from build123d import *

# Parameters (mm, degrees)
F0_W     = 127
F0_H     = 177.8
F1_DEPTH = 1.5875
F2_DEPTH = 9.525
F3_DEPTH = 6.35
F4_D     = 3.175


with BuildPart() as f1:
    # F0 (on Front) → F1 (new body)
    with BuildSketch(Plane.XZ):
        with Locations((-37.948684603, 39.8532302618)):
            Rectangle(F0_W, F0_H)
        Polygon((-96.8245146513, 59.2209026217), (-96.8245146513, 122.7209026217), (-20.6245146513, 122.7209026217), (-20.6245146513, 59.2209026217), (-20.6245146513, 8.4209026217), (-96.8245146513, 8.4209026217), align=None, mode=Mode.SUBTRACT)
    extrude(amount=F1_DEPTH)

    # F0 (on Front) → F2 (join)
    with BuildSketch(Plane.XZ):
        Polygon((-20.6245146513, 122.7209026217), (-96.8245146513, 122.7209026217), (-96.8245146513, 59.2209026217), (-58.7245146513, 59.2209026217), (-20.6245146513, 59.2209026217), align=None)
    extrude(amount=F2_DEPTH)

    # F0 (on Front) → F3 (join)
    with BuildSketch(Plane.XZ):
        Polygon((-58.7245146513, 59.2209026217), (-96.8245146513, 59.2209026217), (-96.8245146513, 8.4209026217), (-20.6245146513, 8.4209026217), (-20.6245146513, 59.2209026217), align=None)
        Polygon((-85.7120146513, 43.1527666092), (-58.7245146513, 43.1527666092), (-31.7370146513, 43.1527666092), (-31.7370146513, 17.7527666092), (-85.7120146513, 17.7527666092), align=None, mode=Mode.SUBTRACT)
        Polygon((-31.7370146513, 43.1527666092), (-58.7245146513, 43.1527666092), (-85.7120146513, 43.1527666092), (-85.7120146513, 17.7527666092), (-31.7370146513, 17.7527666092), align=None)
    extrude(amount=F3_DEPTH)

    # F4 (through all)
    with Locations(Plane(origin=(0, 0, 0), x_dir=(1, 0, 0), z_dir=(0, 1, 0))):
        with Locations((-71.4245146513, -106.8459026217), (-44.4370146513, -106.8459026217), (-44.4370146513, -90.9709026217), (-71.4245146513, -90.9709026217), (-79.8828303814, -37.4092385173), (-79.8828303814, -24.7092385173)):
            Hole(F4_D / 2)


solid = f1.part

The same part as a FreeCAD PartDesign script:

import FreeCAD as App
import Part
import Sketcher
Q = App.Units.Quantity

doc = App.newDocument("Part")
body = doc.addObject("PartDesign::Body", "Body")

# Sketch on XZ plane
sketch1 = body.newObject("Sketcher::SketchObject", "Sketch")
sketch1.AttachmentSupport = (doc.getObject("XZ_Plane"), [""])
sketch1.MapMode = "FlatFace"
sketch1.addGeometry([
    Part.LineSegment(App.Vector(-101.448685, 128.75323, 0), App.Vector(-101.448685, -49.04677, 0)),  # 0
    Part.LineSegment(App.Vector(-101.448685, -49.04677, 0), App.Vector(25.551315, -49.04677, 0)),  # 1
    Part.LineSegment(App.Vector(25.551315, -49.04677, 0), App.Vector(25.551315, 128.75323, 0)),  # 2
    Part.LineSegment(App.Vector(25.551315, 128.75323, 0), App.Vector(-101.448685, 128.75323, 0)),  # 3
    Part.LineSegment(App.Vector(-96.824515, 8.420903, 0), App.Vector(-96.824515, 122.720903, 0)),  # 4
    Part.LineSegment(App.Vector(-96.824515, 122.720903, 0), App.Vector(-20.624515, 122.720903, 0)),  # 5
    Part.LineSegment(App.Vector(-20.624515, 122.720903, 0), App.Vector(-20.624515, 8.420903, 0)),  # 6
    Part.LineSegment(App.Vector(-20.624515, 8.420903, 0), App.Vector(-96.824515, 8.420903, 0)),  # 7
], False)
sketch1.addConstraint([
    Sketcher.Constraint("Coincident", 0, 2, 1, 1),
    Sketcher.Constraint("Coincident", 1, 2, 2, 1),
    Sketcher.Constraint("Coincident", 2, 2, 3, 1),
    Sketcher.Constraint("Coincident", 3, 2, 0, 1),
    Sketcher.Constraint("Coincident", 4, 2, 5, 1),
    Sketcher.Constraint("Coincident", 5, 2, 6, 1),
    Sketcher.Constraint("Coincident", 6, 2, 7, 1),
    Sketcher.Constraint("Coincident", 7, 2, 4, 1),
    Sketcher.Constraint("Vertical", 0),
    Sketcher.Constraint("Horizontal", 1),
    Sketcher.Constraint("Vertical", 2),
    Sketcher.Constraint("Horizontal", 3),
    Sketcher.Constraint("Vertical", 4),
    Sketcher.Constraint("Horizontal", 5),
    Sketcher.Constraint("Vertical", 6),
    Sketcher.Constraint("Horizontal", 7),
    Sketcher.Constraint("DistanceX", 1, 1, 1, 2, Q("5 in")),
    Sketcher.Constraint("DistanceX", 5, 1, 5, 2, Q("3 in")),
    Sketcher.Constraint("DistanceY", 0, 2, 0, 1, Q("7 in")),
    Sketcher.Constraint("DistanceY", 4, 1, 4, 2, Q("4.5 in")),
    Sketcher.Constraint("DistanceY", 0, 2, -1, 1, Q("49.04677 mm")),
    Sketcher.Constraint("DistanceX", 3, 2, 4, 2, Q("4.62417 mm")),
    Sketcher.Constraint("DistanceX", 0, 2, -1, 1, Q("101.448685 mm")),
    Sketcher.Constraint("DistanceY", -1, 1, 4, 2, Q("122.720903 mm")),
])
pad1 = body.newObject("PartDesign::Pad", "Pad")
pad1.Profile = sketch1
pad1.Length = Q("0.0625 in")

# Sketch on XZ plane
sketch2 = body.newObject("Sketcher::SketchObject", "Sketch001")
sketch2.AttachmentSupport = (doc.getObject("XZ_Plane"), [""])
sketch2.MapMode = "FlatFace"
sketch2.addGeometry([
    Part.LineSegment(App.Vector(-20.624515, 122.720903, 0), App.Vector(-96.824515, 122.720903, 0)),
    Part.LineSegment(App.Vector(-96.824515, 122.720903, 0), App.Vector(-96.824515, 59.220903, 0)),
    Part.LineSegment(App.Vector(-96.824515, 59.220903, 0), App.Vector(-20.624515, 59.220903, 0)),
    Part.LineSegment(App.Vector(-20.624515, 59.220903, 0), App.Vector(-20.624515, 122.720903, 0)),
], False)
sketch2.addConstraint([
    Sketcher.Constraint("Coincident", 0, 2, 1, 1),
    Sketcher.Constraint("Coincident", 1, 2, 2, 1),
    Sketcher.Constraint("Coincident", 2, 2, 3, 1),
    Sketcher.Constraint("Coincident", 3, 2, 0, 1),
    Sketcher.Constraint("Horizontal", 0),
    Sketcher.Constraint("Vertical", 1),
    Sketcher.Constraint("Horizontal", 2),
    Sketcher.Constraint("Vertical", 3),
    Sketcher.Constraint("DistanceX", 0, 2, 0, 1, Q("3 in")),
    Sketcher.Constraint("DistanceY", 1, 2, 1, 1, Q("2.5 in")),
    Sketcher.Constraint("DistanceX", 0, 2, -1, 1, Q("96.824515 mm")),
    Sketcher.Constraint("DistanceY", -1, 1, 0, 2, Q("122.720903 mm")),
])
pad2 = body.newObject("PartDesign::Pad", "Pad001")
pad2.Profile = sketch2
pad2.Length = Q("0.375 in")

# Sketch on XZ plane
sketch3 = body.newObject("Sketcher::SketchObject", "Sketch002")
sketch3.AttachmentSupport = (doc.getObject("XZ_Plane"), [""])
sketch3.MapMode = "FlatFace"
sketch3.addGeometry([
    Part.LineSegment(App.Vector(-96.824515, 59.220903, 0), App.Vector(-96.824515, 8.420903, 0)),
    Part.LineSegment(App.Vector(-96.824515, 8.420903, 0), App.Vector(-20.624515, 8.420903, 0)),
    Part.LineSegment(App.Vector(-20.624515, 8.420903, 0), App.Vector(-20.624515, 59.220903, 0)),
    Part.LineSegment(App.Vector(-20.624515, 59.220903, 0), App.Vector(-96.824515, 59.220903, 0)),
], False)
sketch3.addConstraint([
    Sketcher.Constraint("Coincident", 0, 2, 1, 1),
    Sketcher.Constraint("Coincident", 1, 2, 2, 1),
    Sketcher.Constraint("Coincident", 2, 2, 3, 1),
    Sketcher.Constraint("Coincident", 3, 2, 0, 1),
    Sketcher.Constraint("Vertical", 0),
    Sketcher.Constraint("Horizontal", 1),
    Sketcher.Constraint("Vertical", 2),
    Sketcher.Constraint("Horizontal", 3),
    Sketcher.Constraint("DistanceX", 1, 1, 1, 2, Q("3 in")),
    Sketcher.Constraint("DistanceY", 0, 2, 0, 1, Q("2 in")),
    Sketcher.Constraint("DistanceX", 0, 2, -1, 1, Q("96.824515 mm")),
    Sketcher.Constraint("DistanceY", -1, 1, 0, 2, Q("8.420903 mm")),
])
pad3 = body.newObject("PartDesign::Pad", "Pad002")
pad3.Profile = sketch3
pad3.Length = Q("0.25 in")

# Sketch on XZ plane
sketch4 = body.newObject("Sketcher::SketchObject", "Sketch003")
sketch4.AttachmentSupport = (doc.getObject("XZ_Plane"), [""])
sketch4.MapMode = "FlatFace"
sketch4.addGeometry([
    Part.Circle(App.Vector(-71.424515, 106.845903, 0), App.Vector(0, 0, 1), 1.5875),  # 0
    Part.Circle(App.Vector(-44.437015, 106.845903, 0), App.Vector(0, 0, 1), 1.5875),  # 1
    Part.Circle(App.Vector(-44.437015, 90.970903, 0), App.Vector(0, 0, 1), 1.5875),  # 2
    Part.Circle(App.Vector(-71.424515, 90.970903, 0), App.Vector(0, 0, 1), 1.5875),  # 3
    Part.Circle(App.Vector(-79.88283, 37.409239, 0), App.Vector(0, 0, 1), 1.5875),  # 4
    Part.Circle(App.Vector(-79.88283, 24.709239, 0), App.Vector(0, 0, 1), 1.5875),  # 5
], False)
sketch4.addConstraint([
    Sketcher.Constraint("Equal", 0, 1),
    Sketcher.Constraint("Equal", 1, 2),
    Sketcher.Constraint("Equal", 2, 3),
    Sketcher.Constraint("Equal", 3, 4),
    Sketcher.Constraint("Equal", 4, 5),
    Sketcher.Constraint("Horizontal", 0, 3, 1, 3),
    Sketcher.Constraint("Horizontal", 2, 3, 3, 3),
    Sketcher.Constraint("Vertical", 1, 3, 2, 3),
    Sketcher.Constraint("Vertical", 0, 3, 3, 3),
    Sketcher.Constraint("Vertical", 4, 3, 5, 3),
    Sketcher.Constraint("Diameter", 0, Q("0.125 in")),
    Sketcher.Constraint("DistanceY", 5, 3, 4, 3, Q("0.5 in")),
    Sketcher.Constraint("DistanceX", 0, 3, 1, 3, Q("1.0625 in")),
    Sketcher.Constraint("DistanceY", 2, 3, 1, 3, Q("0.625 in")),
    Sketcher.Constraint("DistanceX", 4, 3, -1, 1, Q("79.88283 mm")),
    Sketcher.Constraint("DistanceY", -1, 1, 4, 3, Q("37.409239 mm")),
    Sketcher.Constraint("DistanceX", 0, 3, -1, 1, Q("71.424515 mm")),
    Sketcher.Constraint("DistanceY", -1, 1, 0, 3, Q("106.845903 mm")),
])
doc.recompute()
hole = body.newObject("PartDesign::Hole", "Hole")
hole.Profile = sketch4
hole.ThreadType = "None"
hole.Diameter = Q("0.125 in")
hole.DepthType = "ThroughAll"
hole.Reversed = True

doc.recompute()
